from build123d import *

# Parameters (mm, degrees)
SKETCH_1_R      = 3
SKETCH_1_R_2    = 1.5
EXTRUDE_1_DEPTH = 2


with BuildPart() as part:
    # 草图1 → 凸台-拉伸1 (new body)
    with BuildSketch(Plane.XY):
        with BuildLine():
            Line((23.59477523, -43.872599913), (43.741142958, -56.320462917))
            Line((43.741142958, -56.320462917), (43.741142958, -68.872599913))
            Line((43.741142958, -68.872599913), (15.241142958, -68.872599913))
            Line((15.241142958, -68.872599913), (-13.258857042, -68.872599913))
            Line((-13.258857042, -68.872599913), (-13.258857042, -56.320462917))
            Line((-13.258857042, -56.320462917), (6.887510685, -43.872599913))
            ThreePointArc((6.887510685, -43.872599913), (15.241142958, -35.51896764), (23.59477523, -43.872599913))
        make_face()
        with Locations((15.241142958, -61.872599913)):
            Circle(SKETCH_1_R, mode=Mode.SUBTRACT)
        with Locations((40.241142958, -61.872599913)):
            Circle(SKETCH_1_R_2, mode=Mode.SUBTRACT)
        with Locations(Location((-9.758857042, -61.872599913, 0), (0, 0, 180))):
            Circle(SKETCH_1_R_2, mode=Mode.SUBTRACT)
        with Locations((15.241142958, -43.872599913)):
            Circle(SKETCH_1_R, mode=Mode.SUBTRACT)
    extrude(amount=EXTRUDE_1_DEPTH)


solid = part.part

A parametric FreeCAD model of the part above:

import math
import FreeCAD as App
import Part
import Sketcher

V = App.Vector

doc = App.newDocument("Part")
body = doc.addObject("PartDesign::Body", "Body")

# Sketch on XY plane
sketch1 = body.newObject("Sketcher::SketchObject", "Sketch")
sketch1.AttachmentSupport = (doc.getObject("XY_Plane"), [""])
sketch1.MapMode = "FlatFace"
sketch1.addGeometry(Part.LineSegment(V(43.7, -56.3, 0), V(23.6, -43.9, 0)), False)
sketch1.addGeometry(Part.ArcOfCircle(Part.Circle(V(15.2, -43.9, 0), V(0, 0, 1), 8.4), math.radians(0), math.radians(180)), False)
sketch1.addGeometry(Part.LineSegment(V(6.9, -43.9, 0), V(-13.3, -56.3, 0)), False)
sketch1.addGeometry(Part.LineSegment(V(-13.3, -56.3, 0), V(-13.3, -68.9, 0)), False)
sketch1.addGeometry(Part.LineSegment(V(-13.3, -68.9, 0), V(43.7, -68.9, 0)), False)
sketch1.addGeometry(Part.LineSegment(V(43.7, -68.9, 0), V(43.7, -56.3, 0)), False)
sketch1.addGeometry(Part.Circle(V(40.2, -61.9, 0), V(0, 0, 1), 1.5), False)
sketch1.addGeometry(Part.Circle(V(15.2, -61.9, 0), V(0, 0, 1), 3), False)
sketch1.addGeometry(Part.Circle(V(-9.8, -61.9, 0), V(0, 0, 1), 1.5), False)
sketch1.addGeometry(Part.Circle(V(15.2, -43.9, 0), V(0, 0, 1), 3), False)
sketch1.addConstraint(Sketcher.Constraint("Coincident", 0, 2, 1, 1))
sketch1.addConstraint(Sketcher.Constraint("Coincident", 1, 2, 2, 1))
sketch1.addConstraint(Sketcher.Constraint("Coincident", 2, 2, 3, 1))
sketch1.addConstraint(Sketcher.Constraint("Coincident", 3, 2, 4, 1))
sketch1.addConstraint(Sketcher.Constraint("Coincident", 4, 2, 5, 1))
sketch1.addConstraint(Sketcher.Constraint("Coincident", 5, 2, 0, 1))
sketch1.addConstraint(Sketcher.Constraint("Vertical", 3))
sketch1.addConstraint(Sketcher.Constraint("Horizontal", 4))
sketch1.addConstraint(Sketcher.Constraint("Vertical", 5))
sketch1.addConstraint(Sketcher.Constraint("Coincident", 9, 3, 1, 3))
sketch1.addConstraint(Sketcher.Constraint("Equal", 6, 8))
sketch1.addConstraint(Sketcher.Constraint("Equal", 7, 9))
sketch1.addConstraint(Sketcher.Constraint("Horizontal", 6, 3, 7, 3))
sketch1.addConstraint(Sketcher.Constraint("Horizontal", 7, 3, 8, 3))
sketch1.addConstraint(Sketcher.Constraint("Horizontal", 9, 3, 0, 2))
sketch1.addConstraint(Sketcher.Constraint("Horizontal", 0, 2, 1, 2))
sketch1.addConstraint(Sketcher.Constraint("Horizontal", 2, 2, 5, 2))
sketch1.addConstraint(Sketcher.Constraint("Vertical", 1, 3, 7, 3))
sketch1.addConstraint(Sketcher.Constraint("Equal", 0, 2))
sketch1.addConstraint(Sketcher.Constraint("Diameter", 6, 3.0))
sketch1.addConstraint(Sketcher.Constraint("Diameter", 7, 6.0))
sketch1.addConstraint(Sketcher.Constraint("DistanceX", 4, 1, 4, 2, 57.0))
sketch1.addConstraint(Sketcher.Constraint("DistanceX", 1, 3, 6, 3, 25.0))
sketch1.addConstraint(Sketcher.Constraint("DistanceY", 6, 3, 1, 3, 18.0))
sketch1.addConstraint(Sketcher.Constraint("DistanceX", 8, 3, 7, 3, 25.0))
sketch1.addConstraint(Sketcher.Constraint("DistanceY", 3, 2, 8, 3, 7.0))
sketch1.addConstraint(Sketcher.Constraint("Radius", 1, 8.353632))
sketch1.addConstraint(Sketcher.Constraint("DistanceY", 1, 3, -1, 1, 43.8726))
sketch1.addConstraint(Sketcher.Constraint("DistanceY", 3, 2, 3, 1, 12.552137))
sketch1.addConstraint(Sketcher.Constraint("DistanceX", -1, 1, 1, 2, 6.887511))
pad1 = body.newObject("PartDesign::Pad", "Pad")
pad1.Profile = sketch1
pad1.Length = 2

doc.recompute()
